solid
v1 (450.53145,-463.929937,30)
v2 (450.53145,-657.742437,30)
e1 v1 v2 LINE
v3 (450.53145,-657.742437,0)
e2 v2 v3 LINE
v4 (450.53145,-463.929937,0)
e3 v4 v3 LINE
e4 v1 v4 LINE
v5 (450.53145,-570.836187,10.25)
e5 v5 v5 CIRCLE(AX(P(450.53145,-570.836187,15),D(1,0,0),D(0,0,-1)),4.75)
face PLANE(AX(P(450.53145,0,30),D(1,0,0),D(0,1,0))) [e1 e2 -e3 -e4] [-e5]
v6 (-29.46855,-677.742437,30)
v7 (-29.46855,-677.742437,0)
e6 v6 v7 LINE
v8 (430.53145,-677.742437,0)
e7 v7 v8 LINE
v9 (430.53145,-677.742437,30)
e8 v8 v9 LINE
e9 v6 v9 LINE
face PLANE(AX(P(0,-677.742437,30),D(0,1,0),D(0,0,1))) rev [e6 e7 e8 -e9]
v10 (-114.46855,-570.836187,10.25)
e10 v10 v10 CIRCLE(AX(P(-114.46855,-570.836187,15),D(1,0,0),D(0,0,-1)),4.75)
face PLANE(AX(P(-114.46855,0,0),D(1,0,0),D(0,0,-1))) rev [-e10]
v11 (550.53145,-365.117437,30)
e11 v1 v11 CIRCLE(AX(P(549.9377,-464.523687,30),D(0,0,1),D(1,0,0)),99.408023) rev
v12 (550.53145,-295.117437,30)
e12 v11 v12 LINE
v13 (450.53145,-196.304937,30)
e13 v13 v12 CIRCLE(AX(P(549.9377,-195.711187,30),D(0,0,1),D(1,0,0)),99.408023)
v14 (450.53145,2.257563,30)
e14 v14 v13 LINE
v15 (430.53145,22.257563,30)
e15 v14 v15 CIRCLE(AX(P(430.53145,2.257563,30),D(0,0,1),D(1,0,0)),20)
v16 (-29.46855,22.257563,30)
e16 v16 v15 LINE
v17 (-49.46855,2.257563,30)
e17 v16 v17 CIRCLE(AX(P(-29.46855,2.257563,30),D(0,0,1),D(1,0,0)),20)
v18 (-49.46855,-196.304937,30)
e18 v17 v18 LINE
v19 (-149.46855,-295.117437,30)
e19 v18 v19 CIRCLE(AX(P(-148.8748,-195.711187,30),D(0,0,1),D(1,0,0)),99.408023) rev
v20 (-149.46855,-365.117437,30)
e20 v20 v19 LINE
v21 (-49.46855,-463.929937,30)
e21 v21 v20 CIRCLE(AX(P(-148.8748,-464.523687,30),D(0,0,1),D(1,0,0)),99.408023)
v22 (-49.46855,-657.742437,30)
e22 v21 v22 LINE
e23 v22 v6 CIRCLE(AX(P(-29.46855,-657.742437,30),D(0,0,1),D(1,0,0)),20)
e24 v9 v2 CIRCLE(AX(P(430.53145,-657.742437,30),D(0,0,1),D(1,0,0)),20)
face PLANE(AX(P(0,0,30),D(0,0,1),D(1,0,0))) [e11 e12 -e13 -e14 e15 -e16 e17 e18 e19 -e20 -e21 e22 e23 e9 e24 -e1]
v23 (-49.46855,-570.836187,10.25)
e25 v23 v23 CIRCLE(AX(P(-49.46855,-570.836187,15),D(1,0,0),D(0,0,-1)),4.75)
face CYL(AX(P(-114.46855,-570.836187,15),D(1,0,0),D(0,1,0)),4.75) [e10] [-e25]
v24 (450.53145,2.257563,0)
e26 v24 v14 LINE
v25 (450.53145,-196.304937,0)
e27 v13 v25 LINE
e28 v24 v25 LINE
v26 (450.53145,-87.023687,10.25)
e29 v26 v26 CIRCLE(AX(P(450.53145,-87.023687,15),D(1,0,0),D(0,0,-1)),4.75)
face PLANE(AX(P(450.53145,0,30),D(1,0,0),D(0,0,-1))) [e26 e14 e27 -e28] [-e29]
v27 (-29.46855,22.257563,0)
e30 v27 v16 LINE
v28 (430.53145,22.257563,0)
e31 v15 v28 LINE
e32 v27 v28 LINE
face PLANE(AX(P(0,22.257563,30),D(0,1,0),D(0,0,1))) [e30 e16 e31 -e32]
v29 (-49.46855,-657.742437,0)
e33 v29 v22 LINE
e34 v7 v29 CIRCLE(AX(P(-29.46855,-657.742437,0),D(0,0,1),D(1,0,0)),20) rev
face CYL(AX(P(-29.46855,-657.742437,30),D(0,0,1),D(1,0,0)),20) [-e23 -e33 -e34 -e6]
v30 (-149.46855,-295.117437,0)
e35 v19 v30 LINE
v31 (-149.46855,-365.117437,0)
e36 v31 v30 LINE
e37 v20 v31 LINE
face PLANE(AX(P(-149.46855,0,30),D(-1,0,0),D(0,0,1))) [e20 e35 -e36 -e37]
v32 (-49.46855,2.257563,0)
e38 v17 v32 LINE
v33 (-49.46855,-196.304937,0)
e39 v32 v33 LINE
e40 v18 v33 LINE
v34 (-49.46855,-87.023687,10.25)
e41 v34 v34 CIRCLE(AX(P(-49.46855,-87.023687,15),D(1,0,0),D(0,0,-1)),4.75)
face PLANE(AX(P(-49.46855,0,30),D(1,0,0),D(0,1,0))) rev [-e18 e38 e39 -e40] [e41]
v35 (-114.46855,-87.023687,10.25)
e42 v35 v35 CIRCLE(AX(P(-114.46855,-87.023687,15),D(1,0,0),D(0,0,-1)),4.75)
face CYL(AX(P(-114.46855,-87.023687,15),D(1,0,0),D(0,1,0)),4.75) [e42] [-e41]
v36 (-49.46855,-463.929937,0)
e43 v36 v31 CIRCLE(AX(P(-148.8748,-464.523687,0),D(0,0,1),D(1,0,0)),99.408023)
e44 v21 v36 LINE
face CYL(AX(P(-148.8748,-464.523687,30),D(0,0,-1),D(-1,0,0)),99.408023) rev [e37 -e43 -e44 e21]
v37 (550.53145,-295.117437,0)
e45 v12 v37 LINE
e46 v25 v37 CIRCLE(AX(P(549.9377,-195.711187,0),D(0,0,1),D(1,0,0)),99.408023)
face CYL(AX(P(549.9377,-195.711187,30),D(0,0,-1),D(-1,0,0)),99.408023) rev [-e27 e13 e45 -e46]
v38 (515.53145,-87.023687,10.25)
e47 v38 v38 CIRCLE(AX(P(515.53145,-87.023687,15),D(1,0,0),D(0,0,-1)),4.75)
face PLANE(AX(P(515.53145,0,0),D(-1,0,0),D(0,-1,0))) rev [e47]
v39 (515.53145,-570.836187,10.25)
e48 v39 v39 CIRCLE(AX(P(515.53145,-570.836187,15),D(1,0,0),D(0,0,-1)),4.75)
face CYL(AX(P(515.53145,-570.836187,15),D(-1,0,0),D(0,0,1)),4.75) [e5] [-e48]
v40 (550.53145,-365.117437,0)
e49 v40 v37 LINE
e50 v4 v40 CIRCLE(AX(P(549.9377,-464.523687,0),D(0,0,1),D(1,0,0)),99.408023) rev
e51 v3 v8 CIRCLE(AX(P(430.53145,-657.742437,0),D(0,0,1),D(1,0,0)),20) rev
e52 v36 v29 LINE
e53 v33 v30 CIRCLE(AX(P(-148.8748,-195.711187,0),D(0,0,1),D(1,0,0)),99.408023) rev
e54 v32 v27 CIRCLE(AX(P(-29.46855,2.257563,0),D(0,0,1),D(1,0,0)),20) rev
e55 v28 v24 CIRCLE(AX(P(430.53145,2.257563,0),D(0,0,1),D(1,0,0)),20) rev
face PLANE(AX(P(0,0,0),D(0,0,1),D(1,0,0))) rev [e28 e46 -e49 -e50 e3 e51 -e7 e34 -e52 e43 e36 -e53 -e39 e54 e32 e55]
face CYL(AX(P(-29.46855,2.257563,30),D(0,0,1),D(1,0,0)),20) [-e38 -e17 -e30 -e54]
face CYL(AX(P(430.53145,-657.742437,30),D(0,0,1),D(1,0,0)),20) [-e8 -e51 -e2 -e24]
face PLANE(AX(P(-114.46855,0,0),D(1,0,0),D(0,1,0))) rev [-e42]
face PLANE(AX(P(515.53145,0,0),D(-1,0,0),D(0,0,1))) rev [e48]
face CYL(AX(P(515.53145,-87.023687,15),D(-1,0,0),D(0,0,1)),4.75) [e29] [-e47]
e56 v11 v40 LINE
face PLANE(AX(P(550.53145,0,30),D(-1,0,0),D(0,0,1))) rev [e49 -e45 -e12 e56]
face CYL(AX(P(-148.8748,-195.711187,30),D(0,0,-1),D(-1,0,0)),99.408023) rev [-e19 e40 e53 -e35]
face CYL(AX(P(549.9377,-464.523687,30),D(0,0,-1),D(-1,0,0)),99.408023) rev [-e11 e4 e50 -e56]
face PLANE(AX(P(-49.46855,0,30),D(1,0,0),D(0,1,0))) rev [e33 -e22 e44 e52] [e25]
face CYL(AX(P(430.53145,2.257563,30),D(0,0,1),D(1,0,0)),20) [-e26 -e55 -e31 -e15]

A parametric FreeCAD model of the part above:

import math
import FreeCAD as App
import Part
import Sketcher
from FreeCAD import Vector


def edges_at(feature, points):
    """Names of the edges that pass closest to the given points."""
    edges = feature.Shape.Edges
    near = lambda p: min(range(len(edges)), key=lambda i: edges[i].distToShape(Part.Vertex(*p))[0])
    return sorted({f"Edge{near(p) + 1}" for p in points})

doc = App.newDocument("Part")
params = doc.addObject("Spreadsheet::Sheet", "Params")
for row, (alias, value) in enumerate([
    ("sketch1_width", "500 mm"),
    ("sketch1_height", "70 mm"),
    ("pad1_length", "30 mm"),
    ("sketch2_diameter", "9.5 mm"),
    ("pad2_length", "65 mm"),
    ("sketch3_diameter", "9.5 mm"),
    ("pad3_length", "65 mm"),
    ("fillet_radius", "20 mm"),
    ("fillet2_radius", "20 mm"),
    ("fillet3_radius", "20 mm"),
    ("fillet4_radius", "20 mm"),
], start=1):
    params.set(f"A{row}", alias)
    params.set(f"B{row}", "=" + value)
    params.setAlias(f"B{row}", alias)

body = doc.addObject("PartDesign::Body", "Body")

# Sketch on XY plane
sketch1 = body.newObject("Sketcher::SketchObject", "Sketch")
sketch1.AttachmentSupport = (doc.getObject("XY_Plane"), [""])
sketch1.MapMode = "FlatFace"
sketch1.addGeometry([
    Part.LineSegment(Vector(450.53145, 22.257563, 0), Vector(-49.46855, 22.257563, 0)),  # 0
    Part.LineSegment(Vector(-49.46855, 22.257563, 0), Vector(-49.46855, -196.304937, 0)),  # 1
    Part.ArcOfCircle(Part.Circle(Vector(-148.8748, -195.711187, 0), Vector(0, 0, 1), 99.408023), math.radians(-90.342222), math.radians(-0.342222)),  # 2
    Part.LineSegment(Vector(-149.46855, -295.117437, 0), Vector(-149.46855, -365.117437, 0)),  # 3
    Part.ArcOfCircle(Part.Circle(Vector(-148.8748, -464.523687, 0), Vector(0, 0, 1), 99.408023), math.radians(0.342222), math.radians(90.342222)),  # 4
    Part.LineSegment(Vector(-49.46855, -463.929937, 0), Vector(-49.46855, -677.742437, 0)),  # 5
    Part.LineSegment(Vector(-49.46855, -677.742437, 0), Vector(450.53145, -677.742437, 0)),  # 6
    Part.LineSegment(Vector(450.53145, -677.742437, 0), Vector(450.53145, -463.929937, 0)),  # 7
    Part.ArcOfCircle(Part.Circle(Vector(549.9377, -464.523687, 0), Vector(0, 0, 1), 99.408023), math.radians(89.657778), math.radians(179.657778)),  # 8
    Part.LineSegment(Vector(550.53145, -365.117437, 0), Vector(550.53145, -295.117437, 0)),  # 9
    Part.ArcOfCircle(Part.Circle(Vector(549.9377, -195.711187, 0), Vector(0, 0, 1), 99.408023), math.radians(-179.657778), math.radians(-89.657778)),  # 10
    Part.LineSegment(Vector(450.53145, -196.304937, 0), Vector(450.53145, 22.257563, 0)),  # 11
], False)
sketch1.addConstraint([
    Sketcher.Constraint("Coincident", 0, 2, 1, 1),
    Sketcher.Constraint("Coincident", 1, 2, 2, 2),
    Sketcher.Constraint("Coincident", 2, 1, 3, 1),
    Sketcher.Constraint("Coincident", 3, 2, 4, 2),
    Sketcher.Constraint("Coincident", 4, 1, 5, 1),
    Sketcher.Constraint("Coincident", 5, 2, 6, 1),
    Sketcher.Constraint("Coincident", 6, 2, 7, 1),
    Sketcher.Constraint("Coincident", 7, 2, 8, 2),
    Sketcher.Constraint("Coincident", 8, 1, 9, 1),
    Sketcher.Constraint("Coincident", 9, 2, 10, 2),
    Sketcher.Constraint("Coincident", 10, 1, 11, 1),
    Sketcher.Constraint("Coincident", 11, 2, 0, 1),
    Sketcher.Constraint("Horizontal", 0),
    Sketcher.Constraint("Vertical", 1),
    Sketcher.Constraint("Vertical", 3),
    Sketcher.Constraint("Vertical", 5),
    Sketcher.Constraint("Horizontal", 6),
    Sketcher.Constraint("Vertical", 7),
    Sketcher.Constraint("Vertical", 9),
    Sketcher.Constraint("Vertical", 11),
    Sketcher.Constraint("Equal", 2, 4),
    Sketcher.Constraint("Equal", 4, 8),
    Sketcher.Constraint("Equal", 8, 10),
    Sketcher.Constraint("Horizontal", 4, 3, 8, 3),
    Sketcher.Constraint("Horizontal", 2, 3, 10, 3),
    Sketcher.Constraint("Horizontal", 4, 1, 7, 2),
    Sketcher.Constraint("Horizontal", 3, 2, 8, 1),
    Sketcher.Constraint("Horizontal", 2, 1, 9, 2),
    Sketcher.Constraint("Horizontal", 1, 2, 10, 1),
    Sketcher.Constraint("Vertical", 2, 3, 4, 3),
    Sketcher.Constraint("Vertical", 1, 2, 4, 1),
    Sketcher.Constraint("DistanceX", 0, 2, 0, 1, 500.0),
    Sketcher.Constraint("DistanceY", 3, 2, 3, 1, 70.0),
    Sketcher.Constraint("DistanceX", 2, 1, 1, 2, 100.0),
    Sketcher.Constraint("DistanceY", 1, 2, 1, 1, 218.5625),
    Sketcher.Constraint("DistanceY", 5, 2, 5, 1, 213.8125),
    Sketcher.Constraint("Radius", 2, 99.408023),
    Sketcher.Constraint("DistanceY", 2, 1, 0, 2, 317.375),
    Sketcher.Constraint("DistanceX", 2, 3, -1, 1, 148.8748),
    Sketcher.Constraint("DistanceY", 2, 3, -1, 1, 195.711187),
])
sketch1.setExpression("Constraints[31]", "Params.sketch1_width")
sketch1.setExpression("Constraints[32]", "Params.sketch1_height")
pad1 = body.newObject("PartDesign::Pad", "Pad")
pad1.Profile = sketch1
pad1.setExpression("Length", "Params.pad1_length")

# Sketch on YZ plane
sketch2 = body.newObject("Sketcher::SketchObject", "Sketch001")
sketch2.AttachmentSupport = (doc.getObject("YZ_Plane"), [""])
sketch2.MapMode = "FlatFace"
sketch2.AttachmentOffset = App.Placement(Vector(0, 0, -114.46855), App.Rotation())
sketch2.addGeometry([
    Part.Circle(Vector(-87, 15, 0), Vector(0, 0, 1), 4.8),
    Part.Circle(Vector(-570.8, 15, 0), Vector(0, 0, 1), 4.8),
], False)
sketch2.addConstraint([
    Sketcher.Constraint("Equal", 0, 1),
    Sketcher.Constraint("Horizontal", 0, 3, 1, 3),
    Sketcher.Constraint("Diameter", 0, 9.5),
    Sketcher.Constraint("DistanceY", -1, 1, 0, 3, 15.0),
    Sketcher.Constraint("DistanceX", 1, 3, 0, 3, 483.8125),
    Sketcher.Constraint("DistanceX", 0, 3, -1, 1, 87.023687),
])
sketch2.setExpression("Constraints[2]", "Params.sketch2_diameter")
pad2 = body.newObject("PartDesign::Pad", "Pad001")
pad2.Profile = sketch2
pad2.setExpression("Length", "Params.pad2_length")

# Sketch on YZ plane
sketch3 = body.newObject("Sketcher::SketchObject", "Sketch002")
sketch3.AttachmentSupport = (doc.getObject("YZ_Plane"), [""])
sketch3.MapMode = "FlatFace"
sketch3.AttachmentOffset = App.Placement(Vector(0, 0, 515.53145), App.Rotation())
sketch3.addGeometry([
    Part.Circle(Vector(-87, 15, 0), Vector(0, 0, 1), 4.8),
    Part.Circle(Vector(-570.8, 15, 0), Vector(0, 0, 1), 4.8),
], False)
sketch3.addConstraint([
    Sketcher.Constraint("Equal", 0, 1),
    Sketcher.Constraint("Horizontal", 0, 3, 1, 3),
    Sketcher.Constraint("Diameter", 0, 9.5),
    Sketcher.Constraint("DistanceY", -1, 1, 0, 3, 15.0),
    Sketcher.Constraint("DistanceX", 1, 3, 0, 3, 483.8125),
    Sketcher.Constraint("DistanceX", 0, 3, -1, 1, 87.023687),
])
sketch3.setExpression("Constraints[2]", "Params.sketch3_diameter")
pad3 = body.newObject("PartDesign::Pad", "Pad002")
pad3.Profile = sketch3
pad3.setExpression("Length", "Params.pad3_length")
pad3.Reversed = True
doc.recompute()

fillet = body.newObject("PartDesign::Fillet", "Fillet")
fillet.Base = (pad3, edges_at(pad3, [(-49.469, 22.258, 15)]))
fillet.setExpression("Radius", "Params.fillet_radius")
doc.recompute()

fillet2 = body.newObject("PartDesign::Fillet", "Fillet001")
fillet2.Base = (fillet, edges_at(fillet, [(450.531, 22.258, 15)]))
fillet2.setExpression("Radius", "Params.fillet2_radius")
doc.recompute()

fillet3 = body.newObject("PartDesign::Fillet", "Fillet002")
fillet3.Base = (fillet2, edges_at(fillet2, [(450.531, -677.742, 15)]))
fillet3.setExpression("Radius", "Params.fillet3_radius")
doc.recompute()

fillet4 = body.newObject("PartDesign::Fillet", "Fillet003")
fillet4.Base = (fillet3, edges_at(fillet3, [(-49.469, -677.742, 15)]))
fillet4.setExpression("Radius", "Params.fillet4_radius")

doc.recompute()
